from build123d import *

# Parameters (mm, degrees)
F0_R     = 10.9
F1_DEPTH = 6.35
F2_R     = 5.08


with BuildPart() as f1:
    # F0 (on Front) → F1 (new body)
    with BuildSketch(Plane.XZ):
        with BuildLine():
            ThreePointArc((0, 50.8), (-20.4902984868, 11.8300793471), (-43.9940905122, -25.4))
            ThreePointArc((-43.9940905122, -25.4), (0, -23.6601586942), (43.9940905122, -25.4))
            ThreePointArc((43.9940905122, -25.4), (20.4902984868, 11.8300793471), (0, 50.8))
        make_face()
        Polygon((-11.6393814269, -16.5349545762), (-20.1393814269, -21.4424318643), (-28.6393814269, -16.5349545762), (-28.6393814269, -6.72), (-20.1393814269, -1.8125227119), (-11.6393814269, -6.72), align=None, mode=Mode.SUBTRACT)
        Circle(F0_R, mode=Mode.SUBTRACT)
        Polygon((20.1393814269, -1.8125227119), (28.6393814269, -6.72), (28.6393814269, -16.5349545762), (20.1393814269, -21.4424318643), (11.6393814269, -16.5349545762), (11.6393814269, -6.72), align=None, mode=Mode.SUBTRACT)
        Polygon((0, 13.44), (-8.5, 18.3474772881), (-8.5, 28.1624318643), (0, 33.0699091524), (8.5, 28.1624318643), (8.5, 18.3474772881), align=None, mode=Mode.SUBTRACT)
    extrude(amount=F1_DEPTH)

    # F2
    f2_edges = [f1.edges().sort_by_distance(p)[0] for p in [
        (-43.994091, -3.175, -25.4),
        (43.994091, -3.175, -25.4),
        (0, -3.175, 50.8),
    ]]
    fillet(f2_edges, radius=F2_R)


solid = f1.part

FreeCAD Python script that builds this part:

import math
import FreeCAD as App
import Part
import Sketcher

V = App.Vector
Q = App.Units.Quantity


def edges_at(feature, points):
    """Names of the edges that pass closest to the given points."""
    edges = feature.Shape.Edges
    near = lambda p: min(range(len(edges)), key=lambda i: edges[i].distToShape(Part.Vertex(*p))[0])
    return sorted({f"Edge{near(p) + 1}" for p in points})

doc = App.newDocument("Part")
body = doc.addObject("PartDesign::Body", "Body")

sketch1 = body.newObject("Sketcher::SketchObject", "Sketch")
sketch1.AttachmentSupport = (doc.getObject("XZ_Plane"), [""])
sketch1.MapMode = "FlatFace"
sketch1.addGeometry(Part.ArcOfCircle(Part.Circle(V(-502.947044, 290.376611, 0), V(0, 0, 1), 557.093064), math.radians(-34.52941), math.radians(-25.47059)), False)
sketch1.addGeometry(Part.ArcOfCircle(Part.Circle(V(0, -580.753223, 0), V(0, 0, 1), 557.093064), math.radians(85.47059), math.radians(94.52941)), False)
sketch1.addGeometry(Part.ArcOfCircle(Part.Circle(V(502.947044, 290.376611, 0), V(0, 0, 1), 557.093064), math.radians(-154.52941), math.radians(-145.47059)), False)
sketch1.addGeometry(Part.LineSegment(V(-11.639381, -6.72, 0), V(-11.639381, -16.534955, 0)), False)
sketch1.addGeometry(Part.LineSegment(V(-11.639381, -16.534955, 0), V(-20.139381, -21.442432, 0)), False)
sketch1.addGeometry(Part.LineSegment(V(-20.139381, -21.442432, 0), V(-28.639381, -16.534955, 0)), False)
sketch1.addGeometry(Part.LineSegment(V(-28.639381, -16.534955, 0), V(-28.639381, -6.72, 0)), False)
sketch1.addGeometry(Part.LineSegment(V(-28.639381, -6.72, 0), V(-20.139381, -1.812523, 0)), False)
sketch1.addGeometry(Part.LineSegment(V(-20.139381, -1.812523, 0), V(-11.639381, -6.72, 0)), False)
sketch1.addGeometry(Part.LineSegment(V(11.639381, -6.72, 0), V(20.139381, -1.812523, 0)), False)
sketch1.addGeometry(Part.LineSegment(V(20.139381, -1.812523, 0), V(28.639381, -6.72, 0)), False)
sketch1.addGeometry(Part.LineSegment(V(28.639381, -6.72, 0), V(28.639381, -16.534955, 0)), False)
sketch1.addGeometry(Part.LineSegment(V(28.639381, -16.534955, 0), V(20.139381, -21.442432, 0)), False)
sketch1.addGeometry(Part.LineSegment(V(20.139381, -21.442432, 0), V(11.639381, -16.534955, 0)), False)
sketch1.addGeometry(Part.LineSegment(V(11.639381, -16.534955, 0), V(11.639381, -6.72, 0)), False)
sketch1.addGeometry(Part.Circle(V(0, 0, 0), V(0, 0, 1), 10.9), False)
sketch1.addGeometry(Part.LineSegment(V(8.5, 18.347477, 0), V(0, 13.44, 0)), False)
sketch1.addGeometry(Part.LineSegment(V(0, 13.44, 0), V(-8.5, 18.347477, 0)), False)
sketch1.addGeometry(Part.LineSegment(V(-8.5, 18.347477, 0), V(-8.5, 28.162432, 0)), False)
sketch1.addGeometry(Part.LineSegment(V(-8.5, 28.162432, 0), V(0, 33.069909, 0)), False)
sketch1.addGeometry(Part.LineSegment(V(0, 33.069909, 0), V(8.5, 28.162432, 0)), False)
sketch1.addGeometry(Part.LineSegment(V(8.5, 28.162432, 0), V(8.5, 18.347477, 0)), False)
sketch1.addConstraint(Sketcher.Constraint("Coincident", 0, 1, 1, 2))
sketch1.addConstraint(Sketcher.Constraint("Coincident", 1, 1, 2, 2))
sketch1.addConstraint(Sketcher.Constraint("Coincident", 2, 1, 0, 2))
sketch1.addConstraint(Sketcher.Constraint("Coincident", 3, 2, 4, 1))
sketch1.addConstraint(Sketcher.Constraint("Coincident", 4, 2, 5, 1))
sketch1.addConstraint(Sketcher.Constraint("Coincident", 5, 2, 6, 1))
sketch1.addConstraint(Sketcher.Constraint("Coincident", 6, 2, 7, 1))
sketch1.addConstraint(Sketcher.Constraint("Coincident", 7, 2, 8, 1))
sketch1.addConstraint(Sketcher.Constraint("Coincident", 8, 2, 3, 1))
sketch1.addConstraint(Sketcher.Constraint("Coincident", 9, 2, 10, 1))
sketch1.addConstraint(Sketcher.Constraint("Coincident", 10, 2, 11, 1))
sketch1.addConstraint(Sketcher.Constraint("Coincident", 11, 2, 12, 1))
sketch1.addConstraint(Sketcher.Constraint("Coincident", 12, 2, 13, 1))
sketch1.addConstraint(Sketcher.Constraint("Coincident", 13, 2, 14, 1))
sketch1.addConstraint(Sketcher.Constraint("Coincident", 14, 2, 9, 1))
sketch1.addConstraint(Sketcher.Constraint("Coincident", 16, 2, 17, 1))
sketch1.addConstraint(Sketcher.Constraint("Coincident", 17, 2, 18, 1))
sketch1.addConstraint(Sketcher.Constraint("Coincident", 18, 2, 19, 1))
sketch1.addConstraint(Sketcher.Constraint("Coincident", 19, 2, 20, 1))
sketch1.addConstraint(Sketcher.Constraint("Coincident", 20, 2, 21, 1))
sketch1.addConstraint(Sketcher.Constraint("Coincident", 21, 2, 16, 1))
sketch1.addConstraint(Sketcher.Constraint("Vertical", 3))
sketch1.addConstraint(Sketcher.Constraint("Vertical", 6))
sketch1.addConstraint(Sketcher.Constraint("Vertical", 11))
sketch1.addConstraint(Sketcher.Constraint("Vertical", 14))
sketch1.addConstraint(Sketcher.Constraint("Vertical", 18))
sketch1.addConstraint(Sketcher.Constraint("Vertical", 21))
sketch1.addConstraint(Sketcher.Constraint("Coincident", 15, 3, -1, 1))
sketch1.addConstraint(Sketcher.Constraint("Equal", 0, 1))
sketch1.addConstraint(Sketcher.Constraint("Equal", 1, 2))
sketch1.addConstraint(Sketcher.Constraint("Symmetric", 0, 3, 2, 3, -2))
sketch1.addConstraint(Sketcher.Constraint("Symmetric", 7, 2, 9, 2, -2))
sketch1.addConstraint(Sketcher.Constraint("Symmetric", 6, 2, 10, 2, -2))
sketch1.addConstraint(Sketcher.Constraint("Symmetric", 4, 2, 12, 2, -2))
sketch1.addConstraint(Sketcher.Constraint("Symmetric", 3, 2, 13, 2, -2))
sketch1.addConstraint(Sketcher.Constraint("Symmetric", 18, 2, 20, 2, -2))
sketch1.addConstraint(Sketcher.Constraint("PointOnObject", 1, 3, -2))
sketch1.addConstraint(Sketcher.Constraint("PointOnObject", 16, 2, -2))
sketch1.addConstraint(Sketcher.Constraint("PointOnObject", 19, 2, -2))
sketch1.addConstraint(Sketcher.Constraint("Parallel", 4, 7))
sketch1.addConstraint(Sketcher.Constraint("Parallel", 5, 8))
sketch1.addConstraint(Sketcher.Constraint("Parallel", 7, 9))
sketch1.addConstraint(Sketcher.Constraint("Parallel", 8, 10))
sketch1.addConstraint(Sketcher.Constraint("Parallel", 9, 12))
sketch1.addConstraint(Sketcher.Constraint("Parallel", 12, 16))
sketch1.addConstraint(Sketcher.Constraint("Parallel", 13, 17))
sketch1.addConstraint(Sketcher.Constraint("Parallel", 16, 19))
sketch1.addConstraint(Sketcher.Constraint("Horizontal", 3, 2, 5, 2))
sketch1.addConstraint(Sketcher.Constraint("Horizontal", 6, 2, 8, 2))
sketch1.addConstraint(Sketcher.Constraint("Equal", 14, 18))
sketch1.addConstraint(Sketcher.Constraint("Equal", 13, 16))
sketch1.addConstraint(Sketcher.Constraint("DistanceY", 0, 1, -1, 1, Q("1 in")))
sketch1.addConstraint(Sketcher.Constraint("DistanceY", -1, 1, 2, 1, Q("2 in")))
sketch1.addConstraint(Sketcher.Constraint("Angle", 4, Q("-150 deg")))
sketch1.addConstraint(Sketcher.Constraint("Diameter", 15, 21.8))
sketch1.addConstraint(Sketcher.Constraint("DistanceY", 1, 3, -1, 1, Q("22.8643001 in")))
sketch1.addConstraint(Sketcher.Constraint("Radius", 0, 557.093064))
sketch1.addConstraint(Sketcher.Constraint("DistanceY", 6, 2, -1, 1, 6.72))
sketch1.addConstraint(Sketcher.Constraint("DistanceY", -1, 1, 16, 2, 13.44))
sketch1.addConstraint(Sketcher.Constraint("DistanceX", 17, 2, -1, 1, 8.5))
sketch1.addConstraint(Sketcher.Constraint("DistanceY", 3, 2, 3, 1, 9.814955))
sketch1.addConstraint(Sketcher.Constraint("DistanceX", 3, 2, -1, 1, 11.639381))
pad1 = body.newObject("PartDesign::Pad", "Pad")
pad1.Profile = sketch1
pad1.Length = Q("0.25 in")
doc.recompute()

fillet = body.newObject("PartDesign::Fillet", "Fillet")
fillet.Base = (pad1, edges_at(pad1, [(-43.994, -3.175, -25.4), (43.994, -3.175, -25.4), (0, -3.175, 50.8)]))
fillet.Radius = Q("0.2 in")

doc.recompute()
